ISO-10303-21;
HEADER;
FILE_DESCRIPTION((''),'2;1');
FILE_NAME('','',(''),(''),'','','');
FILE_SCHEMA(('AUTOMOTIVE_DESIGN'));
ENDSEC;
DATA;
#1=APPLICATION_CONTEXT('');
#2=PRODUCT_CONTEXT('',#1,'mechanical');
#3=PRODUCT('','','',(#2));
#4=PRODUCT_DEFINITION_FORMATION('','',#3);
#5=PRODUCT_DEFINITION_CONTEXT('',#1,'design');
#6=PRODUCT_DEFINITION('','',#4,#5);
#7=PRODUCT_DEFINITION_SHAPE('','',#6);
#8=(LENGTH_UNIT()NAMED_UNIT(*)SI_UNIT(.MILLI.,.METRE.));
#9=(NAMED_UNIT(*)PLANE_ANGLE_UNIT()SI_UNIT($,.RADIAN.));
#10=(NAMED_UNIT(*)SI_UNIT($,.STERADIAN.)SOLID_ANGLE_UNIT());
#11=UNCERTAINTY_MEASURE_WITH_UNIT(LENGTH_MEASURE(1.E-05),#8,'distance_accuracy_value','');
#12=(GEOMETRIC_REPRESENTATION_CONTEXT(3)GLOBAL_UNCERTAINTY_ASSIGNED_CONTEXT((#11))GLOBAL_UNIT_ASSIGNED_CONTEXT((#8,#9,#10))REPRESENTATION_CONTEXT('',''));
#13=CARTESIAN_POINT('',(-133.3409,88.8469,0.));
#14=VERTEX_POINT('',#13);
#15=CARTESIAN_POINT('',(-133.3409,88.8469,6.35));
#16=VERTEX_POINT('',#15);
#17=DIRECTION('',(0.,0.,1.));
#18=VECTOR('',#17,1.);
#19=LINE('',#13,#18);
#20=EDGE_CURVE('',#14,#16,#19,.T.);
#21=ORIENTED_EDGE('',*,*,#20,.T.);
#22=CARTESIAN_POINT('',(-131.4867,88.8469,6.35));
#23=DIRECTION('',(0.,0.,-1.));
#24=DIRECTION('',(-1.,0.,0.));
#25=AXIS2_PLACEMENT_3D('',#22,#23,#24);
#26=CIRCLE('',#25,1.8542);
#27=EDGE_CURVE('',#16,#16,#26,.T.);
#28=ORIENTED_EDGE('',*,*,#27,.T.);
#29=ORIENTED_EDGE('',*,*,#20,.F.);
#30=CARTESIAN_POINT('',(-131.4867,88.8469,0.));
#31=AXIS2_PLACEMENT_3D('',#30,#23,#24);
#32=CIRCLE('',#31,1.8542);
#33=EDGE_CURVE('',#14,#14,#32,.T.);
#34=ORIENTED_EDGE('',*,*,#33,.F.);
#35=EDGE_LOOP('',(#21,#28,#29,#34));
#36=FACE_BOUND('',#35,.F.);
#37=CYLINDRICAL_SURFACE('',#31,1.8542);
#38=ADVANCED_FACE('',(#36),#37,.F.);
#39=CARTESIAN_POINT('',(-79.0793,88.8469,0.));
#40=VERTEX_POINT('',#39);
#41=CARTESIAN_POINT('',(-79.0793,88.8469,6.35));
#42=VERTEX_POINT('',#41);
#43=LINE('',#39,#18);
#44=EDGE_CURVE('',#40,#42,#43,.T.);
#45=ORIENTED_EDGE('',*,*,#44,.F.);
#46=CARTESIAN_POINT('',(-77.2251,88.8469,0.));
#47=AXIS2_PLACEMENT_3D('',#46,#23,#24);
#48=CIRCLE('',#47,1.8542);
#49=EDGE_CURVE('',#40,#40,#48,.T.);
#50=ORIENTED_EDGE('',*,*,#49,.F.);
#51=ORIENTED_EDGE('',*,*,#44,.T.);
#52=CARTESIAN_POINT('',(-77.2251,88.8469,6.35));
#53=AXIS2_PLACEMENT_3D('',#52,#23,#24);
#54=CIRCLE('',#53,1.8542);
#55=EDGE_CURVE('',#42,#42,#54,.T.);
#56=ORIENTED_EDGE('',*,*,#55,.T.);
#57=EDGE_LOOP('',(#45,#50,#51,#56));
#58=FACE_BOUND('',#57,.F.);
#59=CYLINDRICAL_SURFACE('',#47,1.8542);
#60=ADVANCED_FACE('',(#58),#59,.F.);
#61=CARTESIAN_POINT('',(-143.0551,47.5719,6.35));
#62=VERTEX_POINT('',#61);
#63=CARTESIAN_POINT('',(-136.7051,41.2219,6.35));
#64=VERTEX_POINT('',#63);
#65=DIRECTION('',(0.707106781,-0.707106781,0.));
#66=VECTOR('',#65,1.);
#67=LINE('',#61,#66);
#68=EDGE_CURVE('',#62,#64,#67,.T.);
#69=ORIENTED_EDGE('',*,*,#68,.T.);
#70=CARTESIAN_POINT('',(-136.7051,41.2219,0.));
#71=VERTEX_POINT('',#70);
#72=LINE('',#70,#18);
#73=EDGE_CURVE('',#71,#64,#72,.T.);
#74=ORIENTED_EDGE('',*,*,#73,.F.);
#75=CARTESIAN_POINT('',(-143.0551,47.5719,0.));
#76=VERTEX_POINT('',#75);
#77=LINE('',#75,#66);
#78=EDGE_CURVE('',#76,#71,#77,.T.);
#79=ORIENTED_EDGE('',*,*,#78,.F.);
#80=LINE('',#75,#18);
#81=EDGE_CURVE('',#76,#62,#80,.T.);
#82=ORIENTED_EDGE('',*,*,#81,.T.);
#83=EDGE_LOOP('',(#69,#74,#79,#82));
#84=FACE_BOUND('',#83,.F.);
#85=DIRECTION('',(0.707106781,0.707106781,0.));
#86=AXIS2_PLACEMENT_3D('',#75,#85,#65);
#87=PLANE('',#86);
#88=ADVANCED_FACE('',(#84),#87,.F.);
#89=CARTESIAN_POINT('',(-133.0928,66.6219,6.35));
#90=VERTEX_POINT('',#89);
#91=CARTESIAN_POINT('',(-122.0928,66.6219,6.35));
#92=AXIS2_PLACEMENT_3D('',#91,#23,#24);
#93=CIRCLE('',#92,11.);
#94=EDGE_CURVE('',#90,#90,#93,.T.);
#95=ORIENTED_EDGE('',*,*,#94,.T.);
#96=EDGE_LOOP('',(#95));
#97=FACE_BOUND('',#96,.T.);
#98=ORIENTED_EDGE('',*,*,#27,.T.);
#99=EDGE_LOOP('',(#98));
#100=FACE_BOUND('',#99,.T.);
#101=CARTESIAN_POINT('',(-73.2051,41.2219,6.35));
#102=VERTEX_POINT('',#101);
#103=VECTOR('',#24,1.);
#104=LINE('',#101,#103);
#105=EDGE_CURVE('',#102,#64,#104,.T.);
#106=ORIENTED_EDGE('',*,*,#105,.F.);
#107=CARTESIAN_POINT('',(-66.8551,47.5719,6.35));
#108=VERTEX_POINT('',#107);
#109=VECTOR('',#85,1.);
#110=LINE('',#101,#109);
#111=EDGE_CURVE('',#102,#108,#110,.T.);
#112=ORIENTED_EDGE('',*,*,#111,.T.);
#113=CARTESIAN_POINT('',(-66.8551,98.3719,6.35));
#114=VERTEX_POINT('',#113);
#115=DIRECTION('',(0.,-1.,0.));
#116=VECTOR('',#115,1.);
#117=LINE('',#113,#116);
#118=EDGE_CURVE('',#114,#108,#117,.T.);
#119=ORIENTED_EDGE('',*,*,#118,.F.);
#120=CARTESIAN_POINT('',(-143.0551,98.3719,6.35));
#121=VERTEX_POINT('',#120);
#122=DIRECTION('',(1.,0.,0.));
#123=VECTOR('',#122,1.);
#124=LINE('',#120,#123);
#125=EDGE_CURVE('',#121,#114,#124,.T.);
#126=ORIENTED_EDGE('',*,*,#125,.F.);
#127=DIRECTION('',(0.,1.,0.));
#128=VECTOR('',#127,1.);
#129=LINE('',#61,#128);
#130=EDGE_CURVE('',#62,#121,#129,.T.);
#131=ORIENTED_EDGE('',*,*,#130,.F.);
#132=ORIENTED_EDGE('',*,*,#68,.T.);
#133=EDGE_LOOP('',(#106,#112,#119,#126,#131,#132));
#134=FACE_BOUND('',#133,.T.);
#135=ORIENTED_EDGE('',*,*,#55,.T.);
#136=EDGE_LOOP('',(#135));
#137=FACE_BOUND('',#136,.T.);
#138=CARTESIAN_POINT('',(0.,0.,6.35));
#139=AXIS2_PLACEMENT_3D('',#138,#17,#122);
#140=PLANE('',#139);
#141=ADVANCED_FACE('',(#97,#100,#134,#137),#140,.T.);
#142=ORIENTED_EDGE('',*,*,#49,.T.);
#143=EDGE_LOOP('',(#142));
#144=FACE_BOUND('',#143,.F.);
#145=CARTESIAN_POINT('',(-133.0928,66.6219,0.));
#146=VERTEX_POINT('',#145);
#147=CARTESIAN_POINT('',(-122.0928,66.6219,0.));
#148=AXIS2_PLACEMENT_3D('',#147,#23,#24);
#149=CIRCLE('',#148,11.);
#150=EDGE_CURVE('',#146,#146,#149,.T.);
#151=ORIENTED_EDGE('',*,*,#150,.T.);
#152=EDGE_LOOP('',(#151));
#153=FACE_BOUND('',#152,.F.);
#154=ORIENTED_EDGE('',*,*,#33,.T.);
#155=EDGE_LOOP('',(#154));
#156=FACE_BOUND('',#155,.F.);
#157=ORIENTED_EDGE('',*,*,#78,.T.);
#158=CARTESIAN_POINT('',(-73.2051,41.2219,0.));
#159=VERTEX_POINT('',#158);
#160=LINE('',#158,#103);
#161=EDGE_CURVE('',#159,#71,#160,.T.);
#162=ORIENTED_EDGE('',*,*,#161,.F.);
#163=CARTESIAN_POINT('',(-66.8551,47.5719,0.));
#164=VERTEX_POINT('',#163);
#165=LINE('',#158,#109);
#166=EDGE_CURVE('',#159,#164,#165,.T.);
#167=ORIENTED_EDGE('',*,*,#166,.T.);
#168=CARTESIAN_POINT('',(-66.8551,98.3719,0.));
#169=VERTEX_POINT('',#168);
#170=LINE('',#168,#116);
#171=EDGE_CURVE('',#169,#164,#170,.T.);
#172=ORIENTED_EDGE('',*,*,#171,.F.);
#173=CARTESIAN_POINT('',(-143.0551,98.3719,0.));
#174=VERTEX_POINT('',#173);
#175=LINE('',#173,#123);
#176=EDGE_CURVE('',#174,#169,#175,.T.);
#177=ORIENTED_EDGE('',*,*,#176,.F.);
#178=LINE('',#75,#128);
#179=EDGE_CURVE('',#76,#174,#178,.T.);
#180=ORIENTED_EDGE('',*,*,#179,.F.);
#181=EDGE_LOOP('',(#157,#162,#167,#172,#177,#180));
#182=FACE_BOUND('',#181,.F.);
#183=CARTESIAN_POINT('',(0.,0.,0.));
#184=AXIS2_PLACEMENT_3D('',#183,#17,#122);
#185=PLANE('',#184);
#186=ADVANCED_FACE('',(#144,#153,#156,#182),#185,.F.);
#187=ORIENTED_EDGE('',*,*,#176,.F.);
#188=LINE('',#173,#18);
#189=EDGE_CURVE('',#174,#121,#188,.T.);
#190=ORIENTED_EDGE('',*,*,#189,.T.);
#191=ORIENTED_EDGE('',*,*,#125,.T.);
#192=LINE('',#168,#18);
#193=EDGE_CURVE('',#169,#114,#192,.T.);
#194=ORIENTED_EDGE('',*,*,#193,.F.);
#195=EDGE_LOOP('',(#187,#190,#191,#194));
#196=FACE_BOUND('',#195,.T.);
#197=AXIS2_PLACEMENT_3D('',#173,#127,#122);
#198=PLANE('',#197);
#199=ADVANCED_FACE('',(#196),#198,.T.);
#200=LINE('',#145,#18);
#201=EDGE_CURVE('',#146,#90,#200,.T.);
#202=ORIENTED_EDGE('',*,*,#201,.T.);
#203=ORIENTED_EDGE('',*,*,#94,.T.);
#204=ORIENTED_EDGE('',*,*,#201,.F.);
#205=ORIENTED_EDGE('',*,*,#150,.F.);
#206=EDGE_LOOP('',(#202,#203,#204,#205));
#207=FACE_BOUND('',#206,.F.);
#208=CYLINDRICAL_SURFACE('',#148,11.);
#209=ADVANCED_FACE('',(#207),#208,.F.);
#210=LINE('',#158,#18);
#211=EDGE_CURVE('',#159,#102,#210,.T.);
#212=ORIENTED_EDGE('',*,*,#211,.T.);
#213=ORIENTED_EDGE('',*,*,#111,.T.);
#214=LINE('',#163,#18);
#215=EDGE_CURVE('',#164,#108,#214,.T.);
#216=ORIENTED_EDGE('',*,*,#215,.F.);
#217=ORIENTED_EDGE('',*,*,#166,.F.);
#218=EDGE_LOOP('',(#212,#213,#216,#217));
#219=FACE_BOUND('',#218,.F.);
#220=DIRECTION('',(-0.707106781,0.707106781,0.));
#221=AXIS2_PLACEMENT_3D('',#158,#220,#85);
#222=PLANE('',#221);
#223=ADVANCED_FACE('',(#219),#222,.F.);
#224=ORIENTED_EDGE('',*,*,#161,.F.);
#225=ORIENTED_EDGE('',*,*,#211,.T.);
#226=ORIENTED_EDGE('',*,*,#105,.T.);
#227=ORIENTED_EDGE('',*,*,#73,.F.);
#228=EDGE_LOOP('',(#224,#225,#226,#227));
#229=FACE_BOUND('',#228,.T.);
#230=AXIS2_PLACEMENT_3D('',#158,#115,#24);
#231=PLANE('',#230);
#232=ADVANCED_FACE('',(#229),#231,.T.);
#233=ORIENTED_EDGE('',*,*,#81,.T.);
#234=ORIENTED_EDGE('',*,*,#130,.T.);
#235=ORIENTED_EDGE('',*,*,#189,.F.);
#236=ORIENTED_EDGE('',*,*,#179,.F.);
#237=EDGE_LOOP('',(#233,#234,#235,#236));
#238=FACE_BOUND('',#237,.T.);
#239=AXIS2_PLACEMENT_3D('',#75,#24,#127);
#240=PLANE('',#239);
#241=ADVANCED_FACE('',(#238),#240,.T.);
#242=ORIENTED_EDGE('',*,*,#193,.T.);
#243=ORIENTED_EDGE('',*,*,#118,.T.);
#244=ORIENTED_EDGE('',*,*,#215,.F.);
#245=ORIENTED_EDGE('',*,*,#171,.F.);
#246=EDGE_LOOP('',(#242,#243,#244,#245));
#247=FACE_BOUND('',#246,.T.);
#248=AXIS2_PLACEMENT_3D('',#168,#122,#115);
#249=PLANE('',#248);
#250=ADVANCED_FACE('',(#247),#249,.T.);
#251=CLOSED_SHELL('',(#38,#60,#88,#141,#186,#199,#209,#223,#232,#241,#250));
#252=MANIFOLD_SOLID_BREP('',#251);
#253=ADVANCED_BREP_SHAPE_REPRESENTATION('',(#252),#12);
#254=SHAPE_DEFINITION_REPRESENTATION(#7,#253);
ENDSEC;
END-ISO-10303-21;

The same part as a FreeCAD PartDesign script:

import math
import FreeCAD as App
import Part
import Sketcher
Q = App.Units.Quantity

doc = App.newDocument("Part")
body = doc.addObject("PartDesign::Body", "Body")

sketch1 = body.newObject("Sketcher::SketchObject", "Sketch")
sketch1.AttachmentSupport = (doc.getObject("XY_Plane"), [""])
sketch1.MapMode = "FlatFace"
sketch1.addGeometry([
    Part.LineSegment(App.Vector(-137, 41, 0), App.Vector(-73, 41, 0)),
    Part.LineSegment(App.Vector(-73, 41, 0), App.Vector(-67, 48, 0)),
    Part.LineSegment(App.Vector(-67, 48, 0), App.Vector(-67, 98, 0)),
    Part.LineSegment(App.Vector(-67, 98, 0), App.Vector(-143, 98, 0)),
    Part.LineSegment(App.Vector(-143, 98, 0), App.Vector(-143, 48, 0)),
    Part.LineSegment(App.Vector(-143, 48, 0), App.Vector(-137, 41, 0)),
], False)
sketch1.addConstraint([
    Sketcher.Constraint("Coincident", 0, 2, 1, 1),
    Sketcher.Constraint("Coincident", 1, 2, 2, 1),
    Sketcher.Constraint("Coincident", 2, 2, 3, 1),
    Sketcher.Constraint("Coincident", 3, 2, 4, 1),
    Sketcher.Constraint("Coincident", 4, 2, 5, 1),
    Sketcher.Constraint("Coincident", 5, 2, 0, 1),
    Sketcher.Constraint("Horizontal", 0),
    Sketcher.Constraint("Vertical", 2),
    Sketcher.Constraint("Horizontal", 3),
    Sketcher.Constraint("Vertical", 4),
    Sketcher.Constraint("Perpendicular", 1, 5),
    Sketcher.Constraint("Horizontal", 1, 2, 4, 2),
    Sketcher.Constraint("Equal", 1, 5),
    Sketcher.Constraint("DistanceX", 3, 2, 3, 1, Q("3 in")),
    Sketcher.Constraint("DistanceY", 2, 1, 2, 2, Q("2 in")),
    Sketcher.Constraint("DistanceX", 0, 2, 1, 2, Q("0.25 in")),
    Sketcher.Constraint("DistanceX", 0, 2, -1, 1, Q("2.8821 in")),
    Sketcher.Constraint("DistanceY", -1, 1, 0, 2, Q("1.6229 in")),
])
pad1 = body.newObject("PartDesign::Pad", "Pad")
pad1.Profile = sketch1
pad1.Length = Q("0.25 in")

sketch2 = body.newObject("Sketcher::SketchObject", "Sketch001")
sketch2.AttachmentSupport = (doc.getObject("XY_Plane"), [""])
sketch2.MapMode = "FlatFace"
sketch2.AttachmentOffset = App.Placement(App.Vector(0, 0, 0.25 * 25.4), App.Rotation())
sketch2.addGeometry([
    Part.LineSegment(App.Vector(-124.5, 65.9, 0), App.Vector(-119.7, 65.8, 0)),
    Part.ArcOfCircle(Part.Circle(App.Vector(-122.1, 66.6, 0), App.Vector(0, 0, 1), 2.5), math.radians(-19), math.radians(196)),
], False)
sketch2.addConstraint([
    Sketcher.Constraint("Coincident", 0, 1, 1, 2),
    Sketcher.Constraint("Coincident", 1, 1, 0, 2),
    Sketcher.Constraint("Radius", 1, Q("2.5 mm")),
    Sketcher.Constraint("Distance", 0, Q("0.1875 in")),
    Sketcher.Constraint("DistanceY", 1, 1, 0, 1, Q("0.005 in")),
    Sketcher.Constraint("DistanceX", 1, 3, -1, 1, Q("4.8068 in")),
    Sketcher.Constraint("DistanceY", -1, 1, 1, 3, Q("2.6229 in")),
])
pocket1 = body.newObject("PartDesign::Pocket", "Pocket")
pocket1.Profile = sketch2
pocket1.Type = "ThroughAll"

sketch3 = body.newObject("Sketcher::SketchObject", "Sketch002")
sketch3.AttachmentSupport = (doc.getObject("XY_Plane"), [""])
sketch3.MapMode = "FlatFace"
sketch3.addGeometry([
    Part.Circle(App.Vector(-122.1, 66.6, 0), App.Vector(0, 0, 1), 11),
    Part.ArcOfCircle(Part.Circle(App.Vector(-122.1, 66.6, 0), App.Vector(0, 0, 1), 2.5), math.radians(-19), math.radians(196)),
    Part.LineSegment(App.Vector(-124.5, 65.9, 0), App.Vector(-119.7, 65.8, 0)),
], False)
sketch3.addConstraint([
    Sketcher.Constraint("Coincident", 1, 1, 2, 2),
    Sketcher.Constraint("Coincident", 2, 1, 1, 2),
    Sketcher.Constraint("Coincident", 1, 3, 0, 3),
    Sketcher.Constraint("Diameter", 0, Q("22 mm")),
    Sketcher.Constraint("Radius", 1, Q("2.5 mm")),
    Sketcher.Constraint("Distance", 2, Q("0.1875 in")),
    Sketcher.Constraint("DistanceY", 1, 1, 2, 1, Q("0.005 in")),
    Sketcher.Constraint("DistanceX", 0, 3, -1, 1, Q("4.8068 in")),
    Sketcher.Constraint("DistanceY", -1, 1, 0, 3, Q("2.6229 in")),
])
pocket2 = body.newObject("PartDesign::Pocket", "Pocket001")
pocket2.Profile = sketch3
pocket2.Type = "ThroughAll"
pocket2.Reversed = True

sketch4 = body.newObject("Sketcher::SketchObject", "Sketch003")
sketch4.AttachmentSupport = (doc.getObject("XY_Plane"), [""])
sketch4.MapMode = "FlatFace"
sketch4.addGeometry([
    Part.Circle(App.Vector(-77.2, 88.8, 0), App.Vector(0, 0, 1), 1.9),
    Part.Circle(App.Vector(-131.5, 88.8, 0), App.Vector(0, 0, 1), 1.9),
], False)
sketch4.addConstraint([
    Sketcher.Constraint("Equal", 0, 1),
    Sketcher.Constraint("Horizontal", 0, 3, 1, 3),
    Sketcher.Constraint("Diameter", 0, Q("0.146 in")),
    Sketcher.Constraint("DistanceY", -1, 1, 0, 3, Q("3.4979 in")),
    Sketcher.Constraint("DistanceX", 0, 3, -1, 1, Q("77.225 mm")),
    Sketcher.Constraint("DistanceX", 1, 3, -1, 1, Q("131.4867 mm")),
])
pocket3 = body.newObject("PartDesign::Pocket", "Pocket002")
pocket3.Profile = sketch4
pocket3.Type = "ThroughAll"
pocket3.Reversed = True

doc.recompute()
